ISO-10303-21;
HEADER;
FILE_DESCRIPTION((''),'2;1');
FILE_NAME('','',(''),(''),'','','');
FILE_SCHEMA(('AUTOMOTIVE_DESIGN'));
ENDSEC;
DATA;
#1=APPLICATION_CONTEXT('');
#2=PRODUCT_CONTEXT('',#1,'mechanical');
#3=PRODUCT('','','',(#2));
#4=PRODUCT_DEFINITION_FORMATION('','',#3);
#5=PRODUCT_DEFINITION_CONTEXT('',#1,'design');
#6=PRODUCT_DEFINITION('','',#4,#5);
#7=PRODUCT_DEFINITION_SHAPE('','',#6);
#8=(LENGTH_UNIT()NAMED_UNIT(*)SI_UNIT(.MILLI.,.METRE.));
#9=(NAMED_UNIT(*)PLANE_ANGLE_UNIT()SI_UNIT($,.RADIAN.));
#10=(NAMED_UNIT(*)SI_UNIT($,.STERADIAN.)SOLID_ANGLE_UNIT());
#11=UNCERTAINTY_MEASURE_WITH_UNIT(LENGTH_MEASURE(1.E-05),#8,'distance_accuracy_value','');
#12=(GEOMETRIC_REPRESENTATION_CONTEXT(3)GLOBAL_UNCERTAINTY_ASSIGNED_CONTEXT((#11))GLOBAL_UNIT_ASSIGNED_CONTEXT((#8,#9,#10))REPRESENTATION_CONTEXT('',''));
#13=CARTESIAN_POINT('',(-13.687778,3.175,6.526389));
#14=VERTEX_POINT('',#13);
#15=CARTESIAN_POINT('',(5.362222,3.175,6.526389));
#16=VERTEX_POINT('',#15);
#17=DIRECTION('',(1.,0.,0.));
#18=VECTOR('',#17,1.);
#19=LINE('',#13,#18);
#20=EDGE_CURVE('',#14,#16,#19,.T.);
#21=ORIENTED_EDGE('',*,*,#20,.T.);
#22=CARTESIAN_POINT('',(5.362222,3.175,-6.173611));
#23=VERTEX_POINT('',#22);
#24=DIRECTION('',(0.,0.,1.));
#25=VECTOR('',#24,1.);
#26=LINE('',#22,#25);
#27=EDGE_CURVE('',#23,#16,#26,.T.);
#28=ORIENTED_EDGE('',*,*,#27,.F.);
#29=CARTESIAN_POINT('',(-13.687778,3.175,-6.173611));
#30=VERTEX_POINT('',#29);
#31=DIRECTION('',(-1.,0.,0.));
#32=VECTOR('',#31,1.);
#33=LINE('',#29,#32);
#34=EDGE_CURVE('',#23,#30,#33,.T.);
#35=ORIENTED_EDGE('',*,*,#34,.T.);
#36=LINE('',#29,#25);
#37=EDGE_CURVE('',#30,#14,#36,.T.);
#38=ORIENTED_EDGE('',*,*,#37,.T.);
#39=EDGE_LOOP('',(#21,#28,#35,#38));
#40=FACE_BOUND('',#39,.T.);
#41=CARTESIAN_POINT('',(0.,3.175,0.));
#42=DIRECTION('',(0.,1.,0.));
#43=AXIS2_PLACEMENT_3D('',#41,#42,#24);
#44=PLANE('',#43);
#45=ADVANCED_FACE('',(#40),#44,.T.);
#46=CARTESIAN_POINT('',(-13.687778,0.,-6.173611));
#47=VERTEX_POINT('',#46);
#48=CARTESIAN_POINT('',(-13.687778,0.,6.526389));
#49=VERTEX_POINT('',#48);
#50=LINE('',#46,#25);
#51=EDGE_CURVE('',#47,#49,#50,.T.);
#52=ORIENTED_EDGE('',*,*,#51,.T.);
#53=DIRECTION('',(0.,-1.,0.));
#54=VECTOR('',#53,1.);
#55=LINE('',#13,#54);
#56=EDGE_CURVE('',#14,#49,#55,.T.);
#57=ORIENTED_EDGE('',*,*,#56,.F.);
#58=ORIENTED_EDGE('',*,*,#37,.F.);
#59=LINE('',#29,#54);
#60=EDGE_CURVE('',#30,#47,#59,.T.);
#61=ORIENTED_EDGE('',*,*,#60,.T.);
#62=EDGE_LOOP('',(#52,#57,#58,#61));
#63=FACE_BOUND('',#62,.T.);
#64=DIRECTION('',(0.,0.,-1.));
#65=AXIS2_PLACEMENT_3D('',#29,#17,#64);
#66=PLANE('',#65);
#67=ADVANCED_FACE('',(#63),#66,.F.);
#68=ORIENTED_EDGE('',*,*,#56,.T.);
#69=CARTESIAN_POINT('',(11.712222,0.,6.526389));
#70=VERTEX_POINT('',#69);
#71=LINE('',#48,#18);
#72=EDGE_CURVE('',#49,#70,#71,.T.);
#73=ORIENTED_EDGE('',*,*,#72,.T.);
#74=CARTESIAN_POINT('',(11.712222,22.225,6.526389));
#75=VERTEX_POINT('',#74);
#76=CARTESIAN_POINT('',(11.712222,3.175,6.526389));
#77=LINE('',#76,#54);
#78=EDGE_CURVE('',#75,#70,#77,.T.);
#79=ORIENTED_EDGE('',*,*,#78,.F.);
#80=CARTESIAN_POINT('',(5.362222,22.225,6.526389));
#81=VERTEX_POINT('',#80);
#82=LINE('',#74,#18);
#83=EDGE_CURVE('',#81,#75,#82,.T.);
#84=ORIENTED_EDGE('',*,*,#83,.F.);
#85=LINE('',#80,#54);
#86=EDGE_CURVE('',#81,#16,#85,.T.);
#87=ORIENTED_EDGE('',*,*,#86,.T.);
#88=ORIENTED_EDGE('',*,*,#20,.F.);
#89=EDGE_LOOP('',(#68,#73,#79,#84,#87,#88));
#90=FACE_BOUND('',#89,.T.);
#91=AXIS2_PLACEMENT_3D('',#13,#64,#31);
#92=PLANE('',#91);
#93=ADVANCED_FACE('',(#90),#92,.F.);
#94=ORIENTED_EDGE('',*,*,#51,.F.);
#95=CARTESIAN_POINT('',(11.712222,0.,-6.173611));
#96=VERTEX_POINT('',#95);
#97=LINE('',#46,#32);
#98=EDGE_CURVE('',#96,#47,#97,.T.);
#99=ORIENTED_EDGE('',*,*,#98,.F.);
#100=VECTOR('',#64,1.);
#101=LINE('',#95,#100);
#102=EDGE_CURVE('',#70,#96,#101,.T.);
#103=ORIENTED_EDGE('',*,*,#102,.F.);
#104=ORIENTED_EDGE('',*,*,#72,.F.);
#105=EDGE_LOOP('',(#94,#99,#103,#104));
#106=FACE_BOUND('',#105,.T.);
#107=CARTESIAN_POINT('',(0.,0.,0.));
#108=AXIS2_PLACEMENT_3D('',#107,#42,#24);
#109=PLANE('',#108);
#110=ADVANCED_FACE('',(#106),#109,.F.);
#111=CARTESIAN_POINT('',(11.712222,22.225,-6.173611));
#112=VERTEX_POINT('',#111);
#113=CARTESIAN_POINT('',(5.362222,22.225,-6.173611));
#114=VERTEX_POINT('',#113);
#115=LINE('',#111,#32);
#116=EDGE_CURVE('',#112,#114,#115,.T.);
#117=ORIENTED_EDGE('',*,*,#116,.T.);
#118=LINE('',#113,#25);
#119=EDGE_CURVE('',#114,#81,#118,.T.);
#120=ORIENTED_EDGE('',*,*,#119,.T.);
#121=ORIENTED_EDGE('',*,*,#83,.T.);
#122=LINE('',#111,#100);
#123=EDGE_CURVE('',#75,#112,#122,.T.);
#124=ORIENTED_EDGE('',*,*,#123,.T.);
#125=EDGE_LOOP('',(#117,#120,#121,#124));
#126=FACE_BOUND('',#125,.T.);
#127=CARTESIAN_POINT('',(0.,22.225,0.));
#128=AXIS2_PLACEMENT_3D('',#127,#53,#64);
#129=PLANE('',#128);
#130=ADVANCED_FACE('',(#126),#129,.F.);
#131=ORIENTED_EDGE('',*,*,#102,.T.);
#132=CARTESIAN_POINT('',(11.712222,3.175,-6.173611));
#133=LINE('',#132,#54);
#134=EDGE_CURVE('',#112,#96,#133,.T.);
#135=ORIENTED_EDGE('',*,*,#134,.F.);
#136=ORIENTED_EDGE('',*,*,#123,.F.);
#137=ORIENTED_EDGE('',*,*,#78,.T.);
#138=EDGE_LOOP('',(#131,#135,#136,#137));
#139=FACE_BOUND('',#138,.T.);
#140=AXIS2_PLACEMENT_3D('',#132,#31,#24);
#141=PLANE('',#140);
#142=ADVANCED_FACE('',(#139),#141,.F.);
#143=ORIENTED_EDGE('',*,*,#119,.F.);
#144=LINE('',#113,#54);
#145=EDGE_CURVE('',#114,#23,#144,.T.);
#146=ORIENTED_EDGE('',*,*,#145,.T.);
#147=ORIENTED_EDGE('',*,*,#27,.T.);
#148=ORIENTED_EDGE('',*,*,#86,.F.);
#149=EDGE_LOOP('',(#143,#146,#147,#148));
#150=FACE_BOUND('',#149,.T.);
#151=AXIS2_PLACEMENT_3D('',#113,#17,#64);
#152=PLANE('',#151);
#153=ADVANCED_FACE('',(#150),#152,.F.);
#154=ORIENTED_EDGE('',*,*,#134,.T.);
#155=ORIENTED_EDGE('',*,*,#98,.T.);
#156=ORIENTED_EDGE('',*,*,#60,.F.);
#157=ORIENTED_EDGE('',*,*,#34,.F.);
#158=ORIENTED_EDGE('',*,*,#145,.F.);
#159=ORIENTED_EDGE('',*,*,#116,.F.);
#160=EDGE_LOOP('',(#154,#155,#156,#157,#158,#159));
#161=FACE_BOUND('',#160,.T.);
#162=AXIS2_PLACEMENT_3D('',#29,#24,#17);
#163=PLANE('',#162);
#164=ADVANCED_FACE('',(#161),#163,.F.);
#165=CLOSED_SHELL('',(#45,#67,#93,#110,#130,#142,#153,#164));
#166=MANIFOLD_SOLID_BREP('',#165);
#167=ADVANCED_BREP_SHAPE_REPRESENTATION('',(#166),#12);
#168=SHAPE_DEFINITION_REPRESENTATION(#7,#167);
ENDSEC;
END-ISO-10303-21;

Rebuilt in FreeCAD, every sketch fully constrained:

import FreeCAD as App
import Part
import Sketcher
from FreeCAD import Vector
Q = App.Units.Quantity


def add_polygon(sketch, points):
    """Adds a closed chain of lines whose ends are joined by coincident constraints."""
    first, n = sketch.GeometryCount, len(points)
    for a, b in zip(points, points[1:] + points[:1]):
        sketch.addGeometry(Part.LineSegment(App.Vector(*a, 0), App.Vector(*b, 0)), False)
    for i in range(n):
        sketch.addConstraint(Sketcher.Constraint("Coincident", first + i, 2, first + (i + 1) % n, 1))

doc = App.newDocument("Part")
body = doc.addObject("PartDesign::Body", "Body")

# Sketch on XZ plane
sketch1 = doc.addObject("Sketcher::SketchObject", "Sketch")
body.addObject(sketch1)
sketch1.AttachmentSupport = (doc.XZ_Plane, [""])
sketch1.MapMode = "FlatFace"
add_polygon(sketch1, [(-13.687778, -6.173611), (-13.687778, 6.526389), (11.712222, 6.526389), (11.712222, -6.173611)])  # lines 0-3
sketch1.addConstraint([
    Sketcher.Constraint("Vertical", 0),
    Sketcher.Constraint("Horizontal", 1),
    Sketcher.Constraint("Vertical", 2),
    Sketcher.Constraint("Horizontal", 3),
    Sketcher.Constraint("DistanceX", 1, 1, 1, 2, Q("1 in")),
    Sketcher.Constraint("DistanceY", 0, 1, 0, 2, Q("0.5 in")),
    Sketcher.Constraint("DistanceY", -1, 1, 0, 2, 6.526389),
    Sketcher.Constraint("DistanceX", 0, 2, -1, 1, 13.687778),
])
pad1 = doc.addObject("PartDesign::Pad", "Pad")
body.addObject(pad1)
pad1.Profile = sketch1
pad1.Length = Q("0.125 in")
pad1.Reversed = True

# Sketch on XZ plane
sketch2 = doc.addObject("Sketcher::SketchObject", "Sketch001")
body.addObject(sketch2)
sketch2.AttachmentSupport = (doc.XZ_Plane, [""])
sketch2.MapMode = "FlatFace"
sketch2.AttachmentOffset = App.Placement(Vector(0, 0, -0.125 * 25.4), App.Rotation())
add_polygon(sketch2, [(5.362222, -6.173611), (5.362222, 6.526389), (11.712222, 6.526389), (11.712222, -6.173611)])  # lines 0-3
sketch2.addConstraint([
    Sketcher.Constraint("Vertical", 0),
    Sketcher.Constraint("Horizontal", 1),
    Sketcher.Constraint("Vertical", 2),
    Sketcher.Constraint("Horizontal", 3),
    Sketcher.Constraint("DistanceY", 0, 1, 0, 2, Q("0.5 in")),
    Sketcher.Constraint("DistanceX", 1, 1, 1, 2, Q("0.25 in")),
    Sketcher.Constraint("DistanceY", -1, 1, 0, 2, 6.526389),
    Sketcher.Constraint("DistanceX", -1, 1, 0, 2, 5.362222),
])
pad2 = doc.addObject("PartDesign::Pad", "Pad001")
body.addObject(pad2)
pad2.Profile = sketch2
pad2.Length = Q("0.75 in")
pad2.Reversed = True

doc.recompute()
